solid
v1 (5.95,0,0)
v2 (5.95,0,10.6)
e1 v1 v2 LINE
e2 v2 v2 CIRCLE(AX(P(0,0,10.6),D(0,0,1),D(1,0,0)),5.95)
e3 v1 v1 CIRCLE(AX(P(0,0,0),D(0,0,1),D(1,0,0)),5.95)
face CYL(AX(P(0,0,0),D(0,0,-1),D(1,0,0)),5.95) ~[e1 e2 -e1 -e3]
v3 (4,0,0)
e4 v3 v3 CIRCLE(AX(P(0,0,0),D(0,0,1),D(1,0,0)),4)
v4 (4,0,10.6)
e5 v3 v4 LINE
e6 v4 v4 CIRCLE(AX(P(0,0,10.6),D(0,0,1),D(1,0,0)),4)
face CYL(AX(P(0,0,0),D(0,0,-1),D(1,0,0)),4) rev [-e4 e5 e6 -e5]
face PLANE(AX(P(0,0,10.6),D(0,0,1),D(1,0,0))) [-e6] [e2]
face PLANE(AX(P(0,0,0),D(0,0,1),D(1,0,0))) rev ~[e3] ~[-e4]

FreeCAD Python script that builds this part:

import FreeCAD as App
import Part
import Sketcher

doc = App.newDocument("Part")
body = doc.addObject("PartDesign::Body", "Body")

# Sketch on XY plane
sketch1 = body.newObject("Sketcher::SketchObject", "Sketch")
sketch1.AttachmentSupport = (doc.getObject("XY_Plane"), [""])
sketch1.MapMode = "FlatFace"
sketch1.addGeometry(Part.Circle(App.Vector(0, 0, 0), App.Vector(0, 0, 1), 6), False)
sketch1.addGeometry(Part.Circle(App.Vector(0, 0, 0), App.Vector(0, 0, 1), 4), False)
sketch1.addConstraint(Sketcher.Constraint("Coincident", 0, 3, -1, 1))
sketch1.addConstraint(Sketcher.Constraint("Coincident", 1, 3, -1, 1))
sketch1.addConstraint(Sketcher.Constraint("Diameter", 1, 8.0))
sketch1.addConstraint(Sketcher.Constraint("Diameter", 0, 11.9))
pad1 = body.newObject("PartDesign::Pad", "Pad")
pad1.Profile = sketch1
pad1.Length = 10.6

doc.recompute()
